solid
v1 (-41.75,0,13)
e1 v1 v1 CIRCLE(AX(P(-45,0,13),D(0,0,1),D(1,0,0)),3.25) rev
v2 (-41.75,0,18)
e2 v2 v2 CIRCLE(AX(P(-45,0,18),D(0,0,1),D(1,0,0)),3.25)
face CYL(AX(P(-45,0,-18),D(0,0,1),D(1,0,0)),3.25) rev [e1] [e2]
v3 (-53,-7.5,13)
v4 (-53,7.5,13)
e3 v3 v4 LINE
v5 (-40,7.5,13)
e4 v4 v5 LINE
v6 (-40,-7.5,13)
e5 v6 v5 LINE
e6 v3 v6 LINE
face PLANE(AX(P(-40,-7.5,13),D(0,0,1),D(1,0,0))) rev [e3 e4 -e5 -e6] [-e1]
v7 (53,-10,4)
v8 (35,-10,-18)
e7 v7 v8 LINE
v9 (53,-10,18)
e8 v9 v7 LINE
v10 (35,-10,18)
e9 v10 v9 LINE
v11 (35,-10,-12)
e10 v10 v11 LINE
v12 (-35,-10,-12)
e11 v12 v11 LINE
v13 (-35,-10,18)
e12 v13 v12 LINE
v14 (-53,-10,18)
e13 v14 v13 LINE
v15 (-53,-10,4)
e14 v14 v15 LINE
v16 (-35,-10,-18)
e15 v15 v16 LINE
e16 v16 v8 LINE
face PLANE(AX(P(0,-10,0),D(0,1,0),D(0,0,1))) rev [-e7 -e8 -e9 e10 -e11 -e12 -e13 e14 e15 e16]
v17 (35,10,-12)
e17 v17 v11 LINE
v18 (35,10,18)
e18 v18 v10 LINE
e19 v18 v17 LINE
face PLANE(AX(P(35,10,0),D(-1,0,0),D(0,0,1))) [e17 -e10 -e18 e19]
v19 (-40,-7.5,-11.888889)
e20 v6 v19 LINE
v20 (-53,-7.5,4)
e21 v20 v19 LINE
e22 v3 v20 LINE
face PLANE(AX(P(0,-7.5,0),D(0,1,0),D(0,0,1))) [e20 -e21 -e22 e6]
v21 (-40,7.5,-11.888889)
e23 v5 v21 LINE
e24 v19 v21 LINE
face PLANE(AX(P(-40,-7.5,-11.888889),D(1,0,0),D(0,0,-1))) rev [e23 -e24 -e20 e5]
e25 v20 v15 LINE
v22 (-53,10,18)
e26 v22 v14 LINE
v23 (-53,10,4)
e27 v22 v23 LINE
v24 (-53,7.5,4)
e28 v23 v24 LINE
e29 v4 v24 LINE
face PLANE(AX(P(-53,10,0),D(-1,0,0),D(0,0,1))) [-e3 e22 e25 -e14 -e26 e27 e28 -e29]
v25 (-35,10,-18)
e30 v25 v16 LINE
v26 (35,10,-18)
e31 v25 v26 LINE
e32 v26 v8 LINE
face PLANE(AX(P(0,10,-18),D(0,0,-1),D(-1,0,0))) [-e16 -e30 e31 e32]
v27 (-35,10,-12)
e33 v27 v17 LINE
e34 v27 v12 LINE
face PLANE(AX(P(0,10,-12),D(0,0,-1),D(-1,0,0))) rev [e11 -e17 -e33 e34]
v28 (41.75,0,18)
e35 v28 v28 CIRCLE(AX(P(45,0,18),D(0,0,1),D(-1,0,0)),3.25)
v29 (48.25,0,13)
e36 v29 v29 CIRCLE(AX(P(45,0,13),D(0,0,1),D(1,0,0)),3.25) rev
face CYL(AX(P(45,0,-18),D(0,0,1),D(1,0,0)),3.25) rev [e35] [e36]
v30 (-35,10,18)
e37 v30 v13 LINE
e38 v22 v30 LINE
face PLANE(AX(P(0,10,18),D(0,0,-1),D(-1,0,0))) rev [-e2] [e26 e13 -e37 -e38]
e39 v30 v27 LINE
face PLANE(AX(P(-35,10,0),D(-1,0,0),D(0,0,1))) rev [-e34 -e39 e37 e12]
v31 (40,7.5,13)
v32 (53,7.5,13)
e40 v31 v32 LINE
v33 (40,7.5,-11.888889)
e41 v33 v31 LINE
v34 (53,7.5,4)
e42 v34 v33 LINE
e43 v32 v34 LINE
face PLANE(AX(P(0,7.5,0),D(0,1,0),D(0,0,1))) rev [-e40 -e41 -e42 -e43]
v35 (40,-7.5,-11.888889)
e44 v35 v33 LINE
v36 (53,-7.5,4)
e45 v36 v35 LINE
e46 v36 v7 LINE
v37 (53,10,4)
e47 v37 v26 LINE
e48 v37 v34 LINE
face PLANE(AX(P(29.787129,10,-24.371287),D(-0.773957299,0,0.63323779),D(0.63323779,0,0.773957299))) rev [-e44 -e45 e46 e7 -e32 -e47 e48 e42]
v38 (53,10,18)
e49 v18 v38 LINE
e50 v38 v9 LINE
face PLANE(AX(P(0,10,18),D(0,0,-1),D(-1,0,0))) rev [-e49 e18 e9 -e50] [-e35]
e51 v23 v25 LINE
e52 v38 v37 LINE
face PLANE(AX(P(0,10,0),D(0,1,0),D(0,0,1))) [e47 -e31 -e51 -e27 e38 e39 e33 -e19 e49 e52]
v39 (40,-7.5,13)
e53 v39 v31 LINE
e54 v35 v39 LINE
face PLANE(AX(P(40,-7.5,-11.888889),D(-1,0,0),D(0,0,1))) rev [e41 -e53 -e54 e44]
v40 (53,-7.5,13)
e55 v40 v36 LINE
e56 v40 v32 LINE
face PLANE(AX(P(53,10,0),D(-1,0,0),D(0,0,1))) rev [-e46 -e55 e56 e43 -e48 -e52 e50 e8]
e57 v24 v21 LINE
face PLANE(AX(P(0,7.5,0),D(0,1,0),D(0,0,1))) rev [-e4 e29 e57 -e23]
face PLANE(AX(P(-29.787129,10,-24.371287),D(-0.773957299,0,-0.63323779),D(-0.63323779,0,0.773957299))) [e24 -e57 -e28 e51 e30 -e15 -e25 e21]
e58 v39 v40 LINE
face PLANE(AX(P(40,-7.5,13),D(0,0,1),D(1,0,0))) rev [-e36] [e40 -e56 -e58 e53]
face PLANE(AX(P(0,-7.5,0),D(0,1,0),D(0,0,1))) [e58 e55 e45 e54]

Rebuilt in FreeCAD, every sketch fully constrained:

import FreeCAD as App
import Part
import Sketcher
Q = App.Units.Quantity

doc = App.newDocument("Part")
body = doc.addObject("PartDesign::Body", "Body")

# Sketch on XZ plane
sketch1 = doc.addObject("Sketcher::SketchObject", "Sketch")
body.addObject(sketch1)
sketch1.AttachmentSupport = (doc.XZ_Plane, [""])
sketch1.MapMode = "FlatFace"
sketch1.addGeometry([
    Part.LineSegment(App.Vector(-53, 18, 0), App.Vector(-35, 18, 0)),  # 0
    Part.LineSegment(App.Vector(-35, 18, 0), App.Vector(-35, -12, 0)),  # 1
    Part.LineSegment(App.Vector(-35, -12, 0), App.Vector(35, -12, 0)),  # 2
    Part.LineSegment(App.Vector(35, -12, 0), App.Vector(35, 18, 0)),  # 3
    Part.LineSegment(App.Vector(35, 18, 0), App.Vector(53, 18, 0)),  # 4
    Part.LineSegment(App.Vector(53, 18, 0), App.Vector(53, 4, 0)),  # 5
    Part.LineSegment(App.Vector(53, 4, 0), App.Vector(35, -18, 0)),  # 6
    Part.LineSegment(App.Vector(35, -18, 0), App.Vector(-35, -18, 0)),  # 7
    Part.LineSegment(App.Vector(-35, -18, 0), App.Vector(-53, 4, 0)),  # 8
    Part.LineSegment(App.Vector(-53, 4, 0), App.Vector(-53, 18, 0)),  # 9
], False)
sketch1.addConstraint([
    Sketcher.Constraint("Coincident", 0, 2, 1, 1),
    Sketcher.Constraint("Coincident", 1, 2, 2, 1),
    Sketcher.Constraint("Coincident", 2, 2, 3, 1),
    Sketcher.Constraint("Coincident", 3, 2, 4, 1),
    Sketcher.Constraint("Coincident", 4, 2, 5, 1),
    Sketcher.Constraint("Coincident", 5, 2, 6, 1),
    Sketcher.Constraint("Coincident", 6, 2, 7, 1),
    Sketcher.Constraint("Coincident", 7, 2, 8, 1),
    Sketcher.Constraint("Coincident", 8, 2, 9, 1),
    Sketcher.Constraint("Coincident", 9, 2, 0, 1),
    Sketcher.Constraint("Horizontal", 0),
    Sketcher.Constraint("Vertical", 1),
    Sketcher.Constraint("Horizontal", 2),
    Sketcher.Constraint("Vertical", 3),
    Sketcher.Constraint("Horizontal", 4),
    Sketcher.Constraint("Vertical", 5),
    Sketcher.Constraint("Horizontal", 7),
    Sketcher.Constraint("Vertical", 9),
    Sketcher.Constraint("Symmetric", 0, 2, 6, 2, -1, 1),
    Sketcher.Constraint("Symmetric", 3, 2, 7, 2, -1, 1),
    Sketcher.Constraint("Symmetric", 5, 2, 8, 2, -2),
    Sketcher.Constraint("Vertical", 3, 2, 6, 2),
    Sketcher.Constraint("DistanceX", 0, 1, 0, 2, Q("18 mm")),
    Sketcher.Constraint("DistanceX", 2, 1, 2, 2, Q("70 mm")),
    Sketcher.Constraint("DistanceY", 1, 2, 1, 1, Q("30 mm")),
    Sketcher.Constraint("DistanceY", 5, 2, 5, 1, Q("14 mm")),
    Sketcher.Constraint("DistanceY", -1, 1, 0, 2, Q("18 mm")),
])
pad1 = doc.addObject("PartDesign::Pad", "Pad")
body.addObject(pad1)
pad1.Profile = sketch1
pad1.Length = 20
pad1.Midplane = True

# Sketch on XY plane
sketch2 = doc.addObject("Sketcher::SketchObject", "Sketch001")
body.addObject(sketch2)
sketch2.AttachmentSupport = (doc.XY_Plane, [""])
sketch2.MapMode = "FlatFace"
sketch2.AttachmentOffset = App.Placement(App.Vector(0, 0, 18), App.Rotation())
sketch2.addGeometry([
    Part.Circle(App.Vector(-45, 0, 0), App.Vector(0, 0, 1), 3.25),
    Part.Circle(App.Vector(45, 0, 0), App.Vector(0, 0, 1), 3.25),
], False)
sketch2.addConstraint([
    Sketcher.Constraint("Equal", 0, 1),
    Sketcher.Constraint("Symmetric", 0, 3, 1, 3, -1, 1),
    Sketcher.Constraint("PointOnObject", 0, 3, -1),
    Sketcher.Constraint("Diameter", 0, Q("6.5 mm")),
    Sketcher.Constraint("DistanceX", 0, 3, -1, 1, Q("45 mm")),
])
pocket1 = doc.addObject("PartDesign::Pocket", "Pocket")
body.addObject(pocket1)
pocket1.Profile = sketch2
pocket1.Type = "ThroughAll"

# Sketch on XZ plane
sketch3 = doc.addObject("Sketcher::SketchObject", "Sketch002")
body.addObject(sketch3)
sketch3.AttachmentSupport = (doc.XZ_Plane, [""])
sketch3.MapMode = "FlatFace"
sketch3.addGeometry([
    Part.LineSegment(App.Vector(40, -11.888889, 0), App.Vector(40, 13, 0)),  # 0
    Part.LineSegment(App.Vector(40, 13, 0), App.Vector(53, 13, 0)),  # 1
    Part.LineSegment(App.Vector(53, 13, 0), App.Vector(53, -11.888889, 0)),  # 2
    Part.LineSegment(App.Vector(53, -11.888889, 0), App.Vector(40, -11.888889, 0)),  # 3
    Part.LineSegment(App.Vector(-53, -11.888889, 0), App.Vector(-53, 13, 0)),  # 4
    Part.LineSegment(App.Vector(-53, 13, 0), App.Vector(-40, 13, 0)),  # 5
    Part.LineSegment(App.Vector(-40, 13, 0), App.Vector(-40, -11.888889, 0)),  # 6
    Part.LineSegment(App.Vector(-40, -11.888889, 0), App.Vector(-53, -11.888889, 0)),  # 7
], False)
sketch3.addConstraint([
    Sketcher.Constraint("Coincident", 0, 2, 1, 1),
    Sketcher.Constraint("Coincident", 1, 2, 2, 1),
    Sketcher.Constraint("Coincident", 2, 2, 3, 1),
    Sketcher.Constraint("Coincident", 3, 2, 0, 1),
    Sketcher.Constraint("Coincident", 4, 2, 5, 1),
    Sketcher.Constraint("Coincident", 5, 2, 6, 1),
    Sketcher.Constraint("Coincident", 6, 2, 7, 1),
    Sketcher.Constraint("Coincident", 7, 2, 4, 1),
    Sketcher.Constraint("Vertical", 0),
    Sketcher.Constraint("Horizontal", 1),
    Sketcher.Constraint("Vertical", 2),
    Sketcher.Constraint("Horizontal", 3),
    Sketcher.Constraint("Vertical", 4),
    Sketcher.Constraint("Horizontal", 5),
    Sketcher.Constraint("Vertical", 6),
    Sketcher.Constraint("Horizontal", 7),
    Sketcher.Constraint("Symmetric", 1, 2, 4, 2, -2),
    Sketcher.Constraint("Symmetric", 3, 2, 6, 2, -2),
    Sketcher.Constraint("DistanceX", 1, 1, 1, 2, Q("13 mm")),
    Sketcher.Constraint("DistanceX", -1, 1, 0, 2, Q("40 mm")),
    Sketcher.Constraint("DistanceY", -1, 1, 0, 2, Q("13 mm")),
    Sketcher.Constraint("DistanceY", 0, 1, 0, 2, Q("24.888889 mm")),
])
pocket2 = doc.addObject("PartDesign::Pocket", "Pocket001")
body.addObject(pocket2)
pocket2.Profile = sketch3
pocket2.Length = 15
pocket2.Midplane = True

doc.recompute()
